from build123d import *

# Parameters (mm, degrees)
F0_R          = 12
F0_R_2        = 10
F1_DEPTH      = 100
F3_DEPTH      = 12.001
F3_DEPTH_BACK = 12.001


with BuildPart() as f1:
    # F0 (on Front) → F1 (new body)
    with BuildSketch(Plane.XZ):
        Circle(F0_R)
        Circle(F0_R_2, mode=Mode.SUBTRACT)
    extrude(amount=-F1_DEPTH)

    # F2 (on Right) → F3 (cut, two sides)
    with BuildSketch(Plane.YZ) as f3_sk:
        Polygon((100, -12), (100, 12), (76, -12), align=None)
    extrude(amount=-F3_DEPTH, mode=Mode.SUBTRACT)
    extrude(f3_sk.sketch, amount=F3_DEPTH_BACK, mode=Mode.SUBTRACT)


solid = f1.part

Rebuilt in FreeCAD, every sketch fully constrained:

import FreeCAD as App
import Part
import Sketcher
from FreeCAD import Vector

doc = App.newDocument("Part")
body = doc.addObject("PartDesign::Body", "Body")

sketch1 = body.newObject("Sketcher::SketchObject", "Sketch")
sketch1.AttachmentSupport = (doc.getObject("XZ_Plane"), [""])
sketch1.MapMode = "FlatFace"
sketch1.addGeometry([
    Part.Circle(Vector(0, 0, 0), Vector(0, 0, 1), 12),
    Part.Circle(Vector(0, 0, 0), Vector(0, 0, 1), 10),
], False)
sketch1.addConstraint([
    Sketcher.Constraint("Coincident", 0, 3, -1, 1),
    Sketcher.Constraint("Coincident", 1, 3, -1, 1),
    Sketcher.Constraint("Diameter", 0, 24.0),
    Sketcher.Constraint("Diameter", 1, 20.0),
])
pad1 = body.newObject("PartDesign::Pad", "Pad")
pad1.Profile = sketch1
pad1.Length = 100
pad1.Reversed = True

sketch2 = body.newObject("Sketcher::SketchObject", "Sketch001")
sketch2.AttachmentSupport = (doc.getObject("YZ_Plane"), [""])
sketch2.MapMode = "FlatFace"
sketch2.addGeometry([
    Part.LineSegment(Vector(100, -12, 0), Vector(100, 12, 0)),
    Part.LineSegment(Vector(100, 12, 0), Vector(76, -12, 0)),
    Part.LineSegment(Vector(76, -12, 0), Vector(100, -12, 0)),
], False)
sketch2.addConstraint([
    Sketcher.Constraint("Coincident", 0, 2, 1, 1),
    Sketcher.Constraint("Coincident", 1, 2, 2, 1),
    Sketcher.Constraint("Coincident", 2, 2, 0, 1),
    Sketcher.Constraint("Vertical", 0),
    Sketcher.Constraint("Horizontal", 2),
    Sketcher.Constraint("Equal", 2, 0),
    Sketcher.Constraint("DistanceX", 2, 1, 2, 2, 24.0),
    Sketcher.Constraint("DistanceX", -1, 1, 0, 2, 100.0),
    Sketcher.Constraint("DistanceY", -1, 1, 0, 2, 12.0),
])
pocket1 = body.newObject("PartDesign::Pocket", "Pocket")
pocket1.Profile = sketch2
pocket1.Type = "ThroughAll"
pocket1.Midplane = True

doc.recompute()
